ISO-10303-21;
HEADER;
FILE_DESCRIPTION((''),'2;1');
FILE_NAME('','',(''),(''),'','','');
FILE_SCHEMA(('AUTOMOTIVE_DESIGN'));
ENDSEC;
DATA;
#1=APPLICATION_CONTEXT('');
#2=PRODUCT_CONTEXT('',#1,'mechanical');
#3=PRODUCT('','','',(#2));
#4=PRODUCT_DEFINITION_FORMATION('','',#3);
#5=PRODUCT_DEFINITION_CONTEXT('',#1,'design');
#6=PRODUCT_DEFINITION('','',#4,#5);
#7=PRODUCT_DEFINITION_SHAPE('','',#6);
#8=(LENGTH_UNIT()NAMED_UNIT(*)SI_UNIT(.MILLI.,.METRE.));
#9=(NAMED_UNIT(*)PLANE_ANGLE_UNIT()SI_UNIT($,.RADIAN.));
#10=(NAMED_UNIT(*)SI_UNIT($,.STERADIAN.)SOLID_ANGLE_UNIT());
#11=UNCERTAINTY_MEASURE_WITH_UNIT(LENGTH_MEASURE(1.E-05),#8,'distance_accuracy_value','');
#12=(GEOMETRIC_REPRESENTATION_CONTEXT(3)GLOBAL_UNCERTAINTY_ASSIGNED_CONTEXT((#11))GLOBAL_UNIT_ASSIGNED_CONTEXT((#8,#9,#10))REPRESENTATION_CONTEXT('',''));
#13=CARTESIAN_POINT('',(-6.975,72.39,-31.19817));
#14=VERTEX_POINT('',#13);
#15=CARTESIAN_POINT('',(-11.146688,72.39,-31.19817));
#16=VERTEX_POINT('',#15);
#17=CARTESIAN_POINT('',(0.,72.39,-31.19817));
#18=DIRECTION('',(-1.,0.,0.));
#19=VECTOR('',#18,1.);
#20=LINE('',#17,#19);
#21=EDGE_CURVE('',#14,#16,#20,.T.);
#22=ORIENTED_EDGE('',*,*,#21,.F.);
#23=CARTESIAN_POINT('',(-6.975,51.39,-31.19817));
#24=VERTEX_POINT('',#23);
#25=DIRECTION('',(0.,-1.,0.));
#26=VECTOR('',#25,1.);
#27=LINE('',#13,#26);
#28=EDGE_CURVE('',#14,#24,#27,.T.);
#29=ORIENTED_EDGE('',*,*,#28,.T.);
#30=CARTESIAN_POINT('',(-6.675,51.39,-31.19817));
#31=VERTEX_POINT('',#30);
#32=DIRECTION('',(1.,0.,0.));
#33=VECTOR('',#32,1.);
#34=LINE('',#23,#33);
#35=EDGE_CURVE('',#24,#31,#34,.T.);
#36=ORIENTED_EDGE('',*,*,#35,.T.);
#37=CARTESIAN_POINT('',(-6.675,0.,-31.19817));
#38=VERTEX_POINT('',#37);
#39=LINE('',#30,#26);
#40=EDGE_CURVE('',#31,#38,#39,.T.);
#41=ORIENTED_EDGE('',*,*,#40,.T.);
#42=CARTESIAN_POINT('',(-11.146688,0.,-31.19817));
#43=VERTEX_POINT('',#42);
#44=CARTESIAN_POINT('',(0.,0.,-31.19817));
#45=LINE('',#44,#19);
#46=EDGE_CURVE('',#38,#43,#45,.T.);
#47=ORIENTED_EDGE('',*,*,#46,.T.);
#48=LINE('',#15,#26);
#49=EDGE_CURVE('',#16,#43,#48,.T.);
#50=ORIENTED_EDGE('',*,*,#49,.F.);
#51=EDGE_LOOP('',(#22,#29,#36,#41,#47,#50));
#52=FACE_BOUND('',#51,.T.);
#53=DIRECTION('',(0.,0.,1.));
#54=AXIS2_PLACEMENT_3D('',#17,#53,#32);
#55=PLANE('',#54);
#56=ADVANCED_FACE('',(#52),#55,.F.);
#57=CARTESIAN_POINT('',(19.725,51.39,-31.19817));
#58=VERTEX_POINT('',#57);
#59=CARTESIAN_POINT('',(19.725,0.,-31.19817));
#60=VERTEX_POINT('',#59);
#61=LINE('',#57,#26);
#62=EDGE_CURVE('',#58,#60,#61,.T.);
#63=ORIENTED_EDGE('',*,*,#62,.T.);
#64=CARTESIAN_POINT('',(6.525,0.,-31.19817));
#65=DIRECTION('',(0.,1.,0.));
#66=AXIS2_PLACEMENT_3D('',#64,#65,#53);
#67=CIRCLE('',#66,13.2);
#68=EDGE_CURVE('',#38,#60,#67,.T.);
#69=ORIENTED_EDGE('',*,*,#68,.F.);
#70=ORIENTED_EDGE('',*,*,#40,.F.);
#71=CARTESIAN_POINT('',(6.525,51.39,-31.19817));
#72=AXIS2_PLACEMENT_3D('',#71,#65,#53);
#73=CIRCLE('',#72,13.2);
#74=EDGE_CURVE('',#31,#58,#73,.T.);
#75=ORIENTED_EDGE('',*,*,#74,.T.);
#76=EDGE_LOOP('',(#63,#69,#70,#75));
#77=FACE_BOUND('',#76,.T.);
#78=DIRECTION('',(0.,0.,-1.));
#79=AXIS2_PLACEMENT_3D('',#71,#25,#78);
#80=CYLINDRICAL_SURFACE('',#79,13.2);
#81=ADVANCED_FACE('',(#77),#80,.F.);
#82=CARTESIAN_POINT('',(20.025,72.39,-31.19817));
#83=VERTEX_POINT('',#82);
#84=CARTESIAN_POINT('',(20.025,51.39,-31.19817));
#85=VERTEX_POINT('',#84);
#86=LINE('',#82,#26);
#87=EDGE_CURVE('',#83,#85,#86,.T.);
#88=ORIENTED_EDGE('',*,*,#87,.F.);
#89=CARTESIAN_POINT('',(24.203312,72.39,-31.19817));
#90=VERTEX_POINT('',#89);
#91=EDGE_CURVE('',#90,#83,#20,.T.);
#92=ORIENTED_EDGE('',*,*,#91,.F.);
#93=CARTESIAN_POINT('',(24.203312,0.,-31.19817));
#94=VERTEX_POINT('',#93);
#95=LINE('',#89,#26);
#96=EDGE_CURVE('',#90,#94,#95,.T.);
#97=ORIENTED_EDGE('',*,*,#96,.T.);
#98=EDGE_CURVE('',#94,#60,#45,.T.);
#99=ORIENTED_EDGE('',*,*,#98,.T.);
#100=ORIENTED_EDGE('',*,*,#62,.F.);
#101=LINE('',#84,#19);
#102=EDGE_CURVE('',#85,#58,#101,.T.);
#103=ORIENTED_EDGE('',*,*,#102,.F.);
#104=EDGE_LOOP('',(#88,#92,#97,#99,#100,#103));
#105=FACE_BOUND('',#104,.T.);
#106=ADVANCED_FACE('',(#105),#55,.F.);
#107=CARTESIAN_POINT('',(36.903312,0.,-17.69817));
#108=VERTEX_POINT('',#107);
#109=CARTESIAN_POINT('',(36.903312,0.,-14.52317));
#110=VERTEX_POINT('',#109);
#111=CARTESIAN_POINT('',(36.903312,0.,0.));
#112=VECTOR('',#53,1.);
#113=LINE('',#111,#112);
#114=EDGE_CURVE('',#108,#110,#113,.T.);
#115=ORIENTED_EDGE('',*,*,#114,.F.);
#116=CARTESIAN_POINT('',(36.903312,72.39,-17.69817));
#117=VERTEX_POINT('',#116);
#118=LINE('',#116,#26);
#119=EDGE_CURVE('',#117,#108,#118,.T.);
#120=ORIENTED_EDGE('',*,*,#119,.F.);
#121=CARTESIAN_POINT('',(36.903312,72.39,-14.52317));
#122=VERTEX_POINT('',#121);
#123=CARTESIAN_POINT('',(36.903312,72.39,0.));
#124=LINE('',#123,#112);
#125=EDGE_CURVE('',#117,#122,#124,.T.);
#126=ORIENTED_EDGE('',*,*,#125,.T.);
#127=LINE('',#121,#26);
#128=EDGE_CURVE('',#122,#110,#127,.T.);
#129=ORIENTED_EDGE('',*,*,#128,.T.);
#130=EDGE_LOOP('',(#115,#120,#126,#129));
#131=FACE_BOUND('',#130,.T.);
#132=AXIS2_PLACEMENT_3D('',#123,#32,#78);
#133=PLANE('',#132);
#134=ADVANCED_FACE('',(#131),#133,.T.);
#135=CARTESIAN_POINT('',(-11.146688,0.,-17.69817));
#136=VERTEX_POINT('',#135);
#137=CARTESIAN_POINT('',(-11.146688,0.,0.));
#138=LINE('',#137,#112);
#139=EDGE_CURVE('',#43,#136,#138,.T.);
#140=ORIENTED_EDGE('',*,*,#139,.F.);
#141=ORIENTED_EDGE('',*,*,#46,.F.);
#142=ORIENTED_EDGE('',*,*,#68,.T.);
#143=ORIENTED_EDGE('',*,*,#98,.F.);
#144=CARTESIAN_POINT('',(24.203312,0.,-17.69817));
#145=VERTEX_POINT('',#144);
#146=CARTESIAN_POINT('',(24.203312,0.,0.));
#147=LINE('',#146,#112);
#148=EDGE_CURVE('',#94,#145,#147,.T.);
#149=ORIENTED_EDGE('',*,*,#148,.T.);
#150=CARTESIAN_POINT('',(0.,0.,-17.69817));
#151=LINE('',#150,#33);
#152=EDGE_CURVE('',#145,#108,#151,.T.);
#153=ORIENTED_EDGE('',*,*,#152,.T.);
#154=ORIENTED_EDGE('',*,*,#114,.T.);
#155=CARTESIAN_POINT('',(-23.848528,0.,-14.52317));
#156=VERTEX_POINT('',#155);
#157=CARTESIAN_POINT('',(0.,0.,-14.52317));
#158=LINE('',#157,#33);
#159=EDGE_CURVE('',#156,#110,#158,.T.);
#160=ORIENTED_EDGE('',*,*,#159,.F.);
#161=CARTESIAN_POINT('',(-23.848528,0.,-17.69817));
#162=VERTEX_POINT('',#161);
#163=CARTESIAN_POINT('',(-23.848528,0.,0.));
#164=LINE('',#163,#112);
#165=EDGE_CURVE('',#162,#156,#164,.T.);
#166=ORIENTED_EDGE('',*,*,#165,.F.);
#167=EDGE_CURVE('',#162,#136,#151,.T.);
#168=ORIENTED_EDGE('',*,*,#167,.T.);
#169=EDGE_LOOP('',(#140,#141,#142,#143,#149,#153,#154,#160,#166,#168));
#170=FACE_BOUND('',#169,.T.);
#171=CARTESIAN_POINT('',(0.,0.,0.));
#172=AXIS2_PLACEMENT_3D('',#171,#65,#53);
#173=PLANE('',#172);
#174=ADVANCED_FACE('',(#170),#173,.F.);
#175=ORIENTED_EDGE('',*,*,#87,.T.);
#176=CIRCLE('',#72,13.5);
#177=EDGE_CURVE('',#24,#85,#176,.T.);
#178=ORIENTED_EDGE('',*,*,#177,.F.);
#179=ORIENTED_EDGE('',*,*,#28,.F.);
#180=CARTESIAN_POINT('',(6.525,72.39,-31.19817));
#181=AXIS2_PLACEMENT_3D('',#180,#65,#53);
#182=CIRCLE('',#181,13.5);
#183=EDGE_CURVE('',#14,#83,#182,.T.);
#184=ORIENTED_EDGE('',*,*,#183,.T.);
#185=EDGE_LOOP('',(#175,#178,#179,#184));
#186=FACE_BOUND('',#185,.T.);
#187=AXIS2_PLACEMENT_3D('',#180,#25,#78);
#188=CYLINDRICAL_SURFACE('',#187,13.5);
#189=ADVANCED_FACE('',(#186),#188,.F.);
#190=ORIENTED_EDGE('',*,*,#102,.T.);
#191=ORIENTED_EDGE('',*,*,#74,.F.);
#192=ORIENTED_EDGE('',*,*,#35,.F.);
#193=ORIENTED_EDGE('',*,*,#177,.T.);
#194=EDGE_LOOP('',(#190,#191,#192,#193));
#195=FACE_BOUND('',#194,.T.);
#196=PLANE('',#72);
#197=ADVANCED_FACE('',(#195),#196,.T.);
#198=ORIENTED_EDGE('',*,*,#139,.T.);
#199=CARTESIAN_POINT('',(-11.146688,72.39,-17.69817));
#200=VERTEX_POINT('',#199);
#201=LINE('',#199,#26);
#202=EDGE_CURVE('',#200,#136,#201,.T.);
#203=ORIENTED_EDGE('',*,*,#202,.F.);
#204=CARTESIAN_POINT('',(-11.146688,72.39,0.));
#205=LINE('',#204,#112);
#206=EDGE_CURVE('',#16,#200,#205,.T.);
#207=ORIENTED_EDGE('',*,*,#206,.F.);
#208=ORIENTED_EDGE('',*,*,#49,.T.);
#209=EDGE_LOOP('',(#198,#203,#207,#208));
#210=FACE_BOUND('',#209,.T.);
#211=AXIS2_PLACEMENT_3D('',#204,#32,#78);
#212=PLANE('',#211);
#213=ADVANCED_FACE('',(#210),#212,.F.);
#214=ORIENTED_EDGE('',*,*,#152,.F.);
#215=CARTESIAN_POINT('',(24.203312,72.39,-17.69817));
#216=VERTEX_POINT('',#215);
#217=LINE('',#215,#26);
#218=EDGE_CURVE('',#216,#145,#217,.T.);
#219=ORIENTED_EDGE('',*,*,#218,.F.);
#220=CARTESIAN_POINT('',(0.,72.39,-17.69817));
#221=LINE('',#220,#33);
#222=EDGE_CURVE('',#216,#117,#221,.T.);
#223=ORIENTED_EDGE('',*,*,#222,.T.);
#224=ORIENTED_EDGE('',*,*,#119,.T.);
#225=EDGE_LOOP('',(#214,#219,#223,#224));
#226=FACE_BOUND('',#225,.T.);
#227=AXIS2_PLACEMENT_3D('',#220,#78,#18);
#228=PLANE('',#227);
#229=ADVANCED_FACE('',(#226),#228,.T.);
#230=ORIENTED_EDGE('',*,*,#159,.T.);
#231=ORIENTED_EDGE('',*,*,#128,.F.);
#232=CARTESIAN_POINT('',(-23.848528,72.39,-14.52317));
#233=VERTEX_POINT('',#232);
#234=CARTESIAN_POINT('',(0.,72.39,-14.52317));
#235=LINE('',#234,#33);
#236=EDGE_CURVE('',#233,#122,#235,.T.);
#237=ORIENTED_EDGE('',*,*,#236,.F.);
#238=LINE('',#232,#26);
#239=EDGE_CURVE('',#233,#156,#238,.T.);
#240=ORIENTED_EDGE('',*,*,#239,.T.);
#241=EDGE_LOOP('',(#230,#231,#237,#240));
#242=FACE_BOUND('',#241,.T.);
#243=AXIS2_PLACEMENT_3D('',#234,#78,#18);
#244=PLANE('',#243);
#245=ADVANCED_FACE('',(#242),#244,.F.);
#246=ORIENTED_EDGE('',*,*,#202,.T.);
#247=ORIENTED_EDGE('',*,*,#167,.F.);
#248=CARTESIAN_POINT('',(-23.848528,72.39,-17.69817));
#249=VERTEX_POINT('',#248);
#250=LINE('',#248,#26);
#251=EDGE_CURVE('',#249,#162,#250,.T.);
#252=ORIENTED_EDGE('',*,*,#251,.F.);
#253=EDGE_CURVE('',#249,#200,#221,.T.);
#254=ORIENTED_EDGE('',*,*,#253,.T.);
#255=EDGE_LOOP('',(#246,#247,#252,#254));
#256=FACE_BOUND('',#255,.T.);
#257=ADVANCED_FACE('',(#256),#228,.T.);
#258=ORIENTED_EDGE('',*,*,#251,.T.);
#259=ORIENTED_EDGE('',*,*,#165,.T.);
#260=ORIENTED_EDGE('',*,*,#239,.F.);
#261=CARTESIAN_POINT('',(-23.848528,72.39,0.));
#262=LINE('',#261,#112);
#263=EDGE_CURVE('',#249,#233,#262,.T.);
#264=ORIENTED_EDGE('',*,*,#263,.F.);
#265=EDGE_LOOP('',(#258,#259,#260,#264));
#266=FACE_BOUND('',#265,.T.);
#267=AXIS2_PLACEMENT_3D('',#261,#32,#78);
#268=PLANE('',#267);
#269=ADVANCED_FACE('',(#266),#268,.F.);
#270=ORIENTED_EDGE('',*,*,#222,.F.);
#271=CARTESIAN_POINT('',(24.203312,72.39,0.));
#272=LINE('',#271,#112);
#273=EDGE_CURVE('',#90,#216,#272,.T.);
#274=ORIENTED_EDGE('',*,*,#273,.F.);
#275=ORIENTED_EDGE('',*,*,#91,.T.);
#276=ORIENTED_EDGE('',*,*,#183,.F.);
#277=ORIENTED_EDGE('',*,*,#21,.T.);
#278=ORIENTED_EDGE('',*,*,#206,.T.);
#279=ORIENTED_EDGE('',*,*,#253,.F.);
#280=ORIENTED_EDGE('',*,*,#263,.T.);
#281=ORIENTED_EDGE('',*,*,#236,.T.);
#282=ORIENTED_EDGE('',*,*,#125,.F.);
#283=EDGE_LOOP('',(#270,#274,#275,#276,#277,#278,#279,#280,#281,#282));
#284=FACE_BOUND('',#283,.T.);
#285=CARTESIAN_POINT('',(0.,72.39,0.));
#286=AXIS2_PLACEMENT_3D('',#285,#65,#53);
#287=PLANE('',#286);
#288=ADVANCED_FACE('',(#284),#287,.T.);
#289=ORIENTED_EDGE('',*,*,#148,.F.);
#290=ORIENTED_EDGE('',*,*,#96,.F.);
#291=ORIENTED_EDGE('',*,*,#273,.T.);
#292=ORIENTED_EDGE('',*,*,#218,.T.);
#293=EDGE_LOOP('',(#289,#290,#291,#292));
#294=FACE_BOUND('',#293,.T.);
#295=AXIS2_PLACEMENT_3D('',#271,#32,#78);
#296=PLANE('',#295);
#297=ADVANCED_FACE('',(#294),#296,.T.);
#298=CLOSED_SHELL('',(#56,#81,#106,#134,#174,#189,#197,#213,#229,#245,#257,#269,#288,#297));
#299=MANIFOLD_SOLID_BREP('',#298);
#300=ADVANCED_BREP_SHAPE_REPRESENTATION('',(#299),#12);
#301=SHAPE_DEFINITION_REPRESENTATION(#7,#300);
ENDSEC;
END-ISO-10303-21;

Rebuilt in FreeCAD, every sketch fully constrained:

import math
import FreeCAD as App
import Part
import Sketcher

doc = App.newDocument("Part")
body = doc.addObject("PartDesign::Body", "Body")

# Sketch on XZ plane
sketch1 = body.newObject("Sketcher::SketchObject", "Sketch")
sketch1.AttachmentSupport = (doc.getObject("XZ_Plane"), [""])
sketch1.MapMode = "FlatFace"
sketch1.addGeometry(Part.LineSegment(App.Vector(-11.146688, -17.69817, 0), App.Vector(-23.848528, -17.69817, 0)), False)
sketch1.addGeometry(Part.LineSegment(App.Vector(-23.848528, -17.69817, 0), App.Vector(-23.848528, -14.52317, 0)), False)
sketch1.addGeometry(Part.LineSegment(App.Vector(-23.848528, -14.52317, 0), App.Vector(36.903312, -14.52317, 0)), False)
sketch1.addGeometry(Part.LineSegment(App.Vector(36.903312, -14.52317, 0), App.Vector(36.903312, -17.69817, 0)), False)
sketch1.addGeometry(Part.LineSegment(App.Vector(36.903312, -17.69817, 0), App.Vector(24.203312, -17.69817, 0)), False)
sketch1.addGeometry(Part.LineSegment(App.Vector(24.203312, -17.69817, 0), App.Vector(24.203312, -31.19817, 0)), False)
sketch1.addGeometry(Part.LineSegment(App.Vector(24.203312, -31.19817, 0), App.Vector(20.025, -31.19817, 0)), False)
sketch1.addGeometry(Part.ArcOfCircle(Part.Circle(App.Vector(6.525, -31.19817, 0), App.Vector(0, 0, 1), 13.5), math.radians(0), math.radians(180)), False)
sketch1.addGeometry(Part.LineSegment(App.Vector(-6.975, -31.19817, 0), App.Vector(-11.146688, -31.19817, 0)), False)
sketch1.addGeometry(Part.LineSegment(App.Vector(-11.146688, -31.19817, 0), App.Vector(-11.146688, -17.69817, 0)), False)
sketch1.addConstraint(Sketcher.Constraint("Coincident", 0, 2, 1, 1))
sketch1.addConstraint(Sketcher.Constraint("Coincident", 1, 2, 2, 1))
sketch1.addConstraint(Sketcher.Constraint("Coincident", 2, 2, 3, 1))
sketch1.addConstraint(Sketcher.Constraint("Coincident", 3, 2, 4, 1))
sketch1.addConstraint(Sketcher.Constraint("Coincident", 4, 2, 5, 1))
sketch1.addConstraint(Sketcher.Constraint("Coincident", 5, 2, 6, 1))
sketch1.addConstraint(Sketcher.Constraint("Coincident", 6, 2, 7, 1))
sketch1.addConstraint(Sketcher.Constraint("Coincident", 7, 2, 8, 1))
sketch1.addConstraint(Sketcher.Constraint("Coincident", 8, 2, 9, 1))
sketch1.addConstraint(Sketcher.Constraint("Coincident", 9, 2, 0, 1))
sketch1.addConstraint(Sketcher.Constraint("Horizontal", 0))
sketch1.addConstraint(Sketcher.Constraint("Vertical", 1))
sketch1.addConstraint(Sketcher.Constraint("Horizontal", 2))
sketch1.addConstraint(Sketcher.Constraint("Vertical", 3))
sketch1.addConstraint(Sketcher.Constraint("Horizontal", 4))
sketch1.addConstraint(Sketcher.Constraint("Vertical", 5))
sketch1.addConstraint(Sketcher.Constraint("Horizontal", 6))
sketch1.addConstraint(Sketcher.Constraint("Horizontal", 8))
sketch1.addConstraint(Sketcher.Constraint("Vertical", 9))
sketch1.addConstraint(Sketcher.Constraint("Horizontal", 0, 2, 3, 2))
sketch1.addConstraint(Sketcher.Constraint("Horizontal", 7, 3, 5, 2))
sketch1.addConstraint(Sketcher.Constraint("Horizontal", 6, 2, 7, 2))
sketch1.addConstraint(Sketcher.Constraint("Radius", 7, 13.5))
sketch1.addConstraint(Sketcher.Constraint("DistanceX", 4, 2, 4, 1, 12.7))
sketch1.addConstraint(Sketcher.Constraint("DistanceY", 5, 2, 5, 1, 13.5))
sketch1.addConstraint(Sketcher.Constraint("DistanceY", 1, 1, 1, 2, 3.175))
sketch1.addConstraint(Sketcher.Constraint("DistanceX", -1, 1, 7, 3, 6.525))
sketch1.addConstraint(Sketcher.Constraint("DistanceX", 0, 2, 0, 1, 12.70184))
sketch1.addConstraint(Sketcher.Constraint("DistanceX", 2, 1, 2, 2, 60.75184))
sketch1.addConstraint(Sketcher.Constraint("DistanceX", 6, 2, 6, 1, 4.178312))
sketch1.addConstraint(Sketcher.Constraint("DistanceY", 7, 3, -1, 1, 31.19817))
pad1 = body.newObject("PartDesign::Pad", "Pad")
pad1.Profile = sketch1
pad1.Length = 72.39
pad1.Reversed = True

# Sketch on XZ plane
sketch2 = body.newObject("Sketcher::SketchObject", "Sketch001")
sketch2.AttachmentSupport = (doc.getObject("XZ_Plane"), [""])
sketch2.MapMode = "FlatFace"
sketch2.addGeometry(Part.LineSegment(App.Vector(-6.675, -31.19817, 0), App.Vector(-6.975, -31.19817, 0)), False)
sketch2.addGeometry(Part.ArcOfCircle(Part.Circle(App.Vector(6.525, -31.19817, 0), App.Vector(0, 0, 1), 13.5), math.radians(0), math.radians(180)), False)
sketch2.addGeometry(Part.LineSegment(App.Vector(20.025, -31.19817, 0), App.Vector(19.725, -31.19817, 0)), False)
sketch2.addGeometry(Part.ArcOfCircle(Part.Circle(App.Vector(6.525, -31.19817, 0), App.Vector(0, 0, 1), 13.2), math.radians(0), math.radians(180)), False)
sketch2.addConstraint(Sketcher.Constraint("Coincident", 0, 2, 1, 2))
sketch2.addConstraint(Sketcher.Constraint("Coincident", 1, 1, 2, 1))
sketch2.addConstraint(Sketcher.Constraint("Coincident", 2, 2, 3, 1))
sketch2.addConstraint(Sketcher.Constraint("Coincident", 3, 2, 0, 1))
sketch2.addConstraint(Sketcher.Constraint("Horizontal", 0))
sketch2.addConstraint(Sketcher.Constraint("Horizontal", 2))
sketch2.addConstraint(Sketcher.Constraint("Coincident", 3, 3, 1, 3))
sketch2.addConstraint(Sketcher.Constraint("Horizontal", 3, 3, 0, 2))
sketch2.addConstraint(Sketcher.Constraint("Horizontal", 0, 2, 1, 1))
sketch2.addConstraint(Sketcher.Constraint("Radius", 1, 13.5))
sketch2.addConstraint(Sketcher.Constraint("Radius", 3, 13.2))
sketch2.addConstraint(Sketcher.Constraint("DistanceX", -1, 1, 1, 3, 6.525))
sketch2.addConstraint(Sketcher.Constraint("DistanceY", 1, 3, -1, 1, 31.19817))
pad2 = body.newObject("PartDesign::Pad", "Pad001")
pad2.Profile = sketch2
pad2.Length = 51.39
pad2.Reversed = True

doc.recompute()
